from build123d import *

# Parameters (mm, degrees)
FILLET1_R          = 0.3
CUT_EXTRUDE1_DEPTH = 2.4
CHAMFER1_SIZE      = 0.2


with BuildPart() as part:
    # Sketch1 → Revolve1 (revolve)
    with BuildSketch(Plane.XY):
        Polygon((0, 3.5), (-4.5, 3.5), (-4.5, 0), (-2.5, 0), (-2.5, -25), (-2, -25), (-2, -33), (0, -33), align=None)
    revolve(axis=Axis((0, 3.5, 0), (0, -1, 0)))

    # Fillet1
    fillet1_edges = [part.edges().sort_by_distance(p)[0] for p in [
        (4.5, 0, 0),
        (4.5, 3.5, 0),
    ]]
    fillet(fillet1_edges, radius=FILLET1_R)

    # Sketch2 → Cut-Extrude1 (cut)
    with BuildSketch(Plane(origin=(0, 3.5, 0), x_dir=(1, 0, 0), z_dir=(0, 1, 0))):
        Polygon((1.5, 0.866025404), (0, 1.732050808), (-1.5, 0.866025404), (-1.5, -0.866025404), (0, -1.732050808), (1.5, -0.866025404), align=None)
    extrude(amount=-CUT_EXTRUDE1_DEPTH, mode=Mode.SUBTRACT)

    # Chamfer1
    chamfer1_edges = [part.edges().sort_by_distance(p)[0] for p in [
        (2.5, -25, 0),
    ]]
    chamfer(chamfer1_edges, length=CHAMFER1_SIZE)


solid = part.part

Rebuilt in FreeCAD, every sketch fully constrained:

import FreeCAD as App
import Part
import Sketcher
Q = App.Units.Quantity


def edges_at(feature, points):
    """Names of the edges that pass closest to the given points."""
    edges = feature.Shape.Edges
    near = lambda p: min(range(len(edges)), key=lambda i: edges[i].distToShape(Part.Vertex(*p))[0])
    return sorted({f"Edge{near(p) + 1}" for p in points})


def add_polygon(sketch, points):
    """Adds a closed chain of lines whose ends are joined by coincident constraints."""
    first, n = sketch.GeometryCount, len(points)
    for a, b in zip(points, points[1:] + points[:1]):
        sketch.addGeometry(Part.LineSegment(App.Vector(*a, 0), App.Vector(*b, 0)), False)
    for i in range(n):
        sketch.addConstraint(Sketcher.Constraint("Coincident", first + i, 2, first + (i + 1) % n, 1))

doc = App.newDocument("Part")
body = doc.addObject("PartDesign::Body", "Body")

# Sketch on XY plane
sketch1 = body.newObject("Sketcher::SketchObject", "Sketch")
sketch1.AttachmentSupport = (doc.getObject("XY_Plane"), [""])
sketch1.MapMode = "FlatFace"
add_polygon(sketch1, [(0, 3.5), (-4.5, 3.5), (-4.5, 0), (-2.5, 0), (-2.5, -25), (-2, -25), (-2, -33), (0, -33)])  # lines 0-7
sketch1.addConstraint([
    Sketcher.Constraint("Horizontal", 0),
    Sketcher.Constraint("Vertical", 1),
    Sketcher.Constraint("Horizontal", 2),
    Sketcher.Constraint("Vertical", 3),
    Sketcher.Constraint("Horizontal", 4),
    Sketcher.Constraint("Vertical", 5),
    Sketcher.Constraint("Horizontal", 6),
    Sketcher.Constraint("Vertical", 7),
    Sketcher.Constraint("PointOnObject", 1, 2, -1),
    Sketcher.Constraint("PointOnObject", 6, 2, -2),
    Sketcher.Constraint("Equal", 2, 6),
    Sketcher.Constraint("DistanceX", 2, 1, 2, 2, Q("2 mm")),
    Sketcher.Constraint("DistanceY", 3, 2, 3, 1, Q("25 mm")),
    Sketcher.Constraint("DistanceY", 5, 2, 5, 1, Q("8 mm")),
    Sketcher.Constraint("DistanceX", 0, 2, 0, 1, Q("4.5 mm")),
    Sketcher.Constraint("DistanceY", 1, 2, 1, 1, Q("3.5 mm")),
])
revolution = body.newObject("PartDesign::Revolution", "Revolution")
revolution.Profile = sketch1
revolution.ReferenceAxis = (sketch1, ["V_Axis"])
revolution.Angle = 360
doc.recompute()

fillet = body.newObject("PartDesign::Fillet", "Fillet")
fillet.Base = (revolution, edges_at(revolution, [(4.5, 0, 0), (4.5, 3.5, 0)]))
fillet.Radius = 0.3

# Sketch on XZ plane
sketch2 = body.newObject("Sketcher::SketchObject", "Sketch001")
sketch2.AttachmentSupport = (doc.getObject("XZ_Plane"), [""])
sketch2.MapMode = "FlatFace"
sketch2.AttachmentOffset = App.Placement(App.Vector(0, 0, -3.5), App.Rotation())
add_polygon(sketch2, [(1.5, -0.9), (0, -1.7), (-1.5, -0.9), (-1.5, 0.9), (0, 1.7), (1.5, 0.9)])  # lines 0-5
sketch2.addConstraint([
    Sketcher.Constraint("Vertical", 2),
    Sketcher.Constraint("Vertical", 5),
    Sketcher.Constraint("Symmetric", 0, 2, 3, 2, -1, 1),
    Sketcher.Constraint("Symmetric", 1, 2, 4, 2, -1, 1),
    Sketcher.Constraint("PointOnObject", 0, 2, -2),
    Sketcher.Constraint("Parallel", 0, 3),
    Sketcher.Constraint("Horizontal", 2, 2, 4, 2),
    Sketcher.Constraint("Angle", 0, Q("-150 deg")),
    Sketcher.Constraint("DistanceX", 2, 2, 4, 2, Q("3 mm")),
    Sketcher.Constraint("DistanceY", 2, 1, 2, 2, Q("1.732051 mm")),
])
pocket1 = body.newObject("PartDesign::Pocket", "Pocket")
pocket1.Profile = sketch2
pocket1.Length = 2.4
pocket1.Reversed = True
doc.recompute()

chamfer = body.newObject("PartDesign::Chamfer", "Chamfer")
chamfer.Base = (pocket1, edges_at(pocket1, [(2.5, -25, 0)]))
chamfer.Size = 0.2

doc.recompute()
